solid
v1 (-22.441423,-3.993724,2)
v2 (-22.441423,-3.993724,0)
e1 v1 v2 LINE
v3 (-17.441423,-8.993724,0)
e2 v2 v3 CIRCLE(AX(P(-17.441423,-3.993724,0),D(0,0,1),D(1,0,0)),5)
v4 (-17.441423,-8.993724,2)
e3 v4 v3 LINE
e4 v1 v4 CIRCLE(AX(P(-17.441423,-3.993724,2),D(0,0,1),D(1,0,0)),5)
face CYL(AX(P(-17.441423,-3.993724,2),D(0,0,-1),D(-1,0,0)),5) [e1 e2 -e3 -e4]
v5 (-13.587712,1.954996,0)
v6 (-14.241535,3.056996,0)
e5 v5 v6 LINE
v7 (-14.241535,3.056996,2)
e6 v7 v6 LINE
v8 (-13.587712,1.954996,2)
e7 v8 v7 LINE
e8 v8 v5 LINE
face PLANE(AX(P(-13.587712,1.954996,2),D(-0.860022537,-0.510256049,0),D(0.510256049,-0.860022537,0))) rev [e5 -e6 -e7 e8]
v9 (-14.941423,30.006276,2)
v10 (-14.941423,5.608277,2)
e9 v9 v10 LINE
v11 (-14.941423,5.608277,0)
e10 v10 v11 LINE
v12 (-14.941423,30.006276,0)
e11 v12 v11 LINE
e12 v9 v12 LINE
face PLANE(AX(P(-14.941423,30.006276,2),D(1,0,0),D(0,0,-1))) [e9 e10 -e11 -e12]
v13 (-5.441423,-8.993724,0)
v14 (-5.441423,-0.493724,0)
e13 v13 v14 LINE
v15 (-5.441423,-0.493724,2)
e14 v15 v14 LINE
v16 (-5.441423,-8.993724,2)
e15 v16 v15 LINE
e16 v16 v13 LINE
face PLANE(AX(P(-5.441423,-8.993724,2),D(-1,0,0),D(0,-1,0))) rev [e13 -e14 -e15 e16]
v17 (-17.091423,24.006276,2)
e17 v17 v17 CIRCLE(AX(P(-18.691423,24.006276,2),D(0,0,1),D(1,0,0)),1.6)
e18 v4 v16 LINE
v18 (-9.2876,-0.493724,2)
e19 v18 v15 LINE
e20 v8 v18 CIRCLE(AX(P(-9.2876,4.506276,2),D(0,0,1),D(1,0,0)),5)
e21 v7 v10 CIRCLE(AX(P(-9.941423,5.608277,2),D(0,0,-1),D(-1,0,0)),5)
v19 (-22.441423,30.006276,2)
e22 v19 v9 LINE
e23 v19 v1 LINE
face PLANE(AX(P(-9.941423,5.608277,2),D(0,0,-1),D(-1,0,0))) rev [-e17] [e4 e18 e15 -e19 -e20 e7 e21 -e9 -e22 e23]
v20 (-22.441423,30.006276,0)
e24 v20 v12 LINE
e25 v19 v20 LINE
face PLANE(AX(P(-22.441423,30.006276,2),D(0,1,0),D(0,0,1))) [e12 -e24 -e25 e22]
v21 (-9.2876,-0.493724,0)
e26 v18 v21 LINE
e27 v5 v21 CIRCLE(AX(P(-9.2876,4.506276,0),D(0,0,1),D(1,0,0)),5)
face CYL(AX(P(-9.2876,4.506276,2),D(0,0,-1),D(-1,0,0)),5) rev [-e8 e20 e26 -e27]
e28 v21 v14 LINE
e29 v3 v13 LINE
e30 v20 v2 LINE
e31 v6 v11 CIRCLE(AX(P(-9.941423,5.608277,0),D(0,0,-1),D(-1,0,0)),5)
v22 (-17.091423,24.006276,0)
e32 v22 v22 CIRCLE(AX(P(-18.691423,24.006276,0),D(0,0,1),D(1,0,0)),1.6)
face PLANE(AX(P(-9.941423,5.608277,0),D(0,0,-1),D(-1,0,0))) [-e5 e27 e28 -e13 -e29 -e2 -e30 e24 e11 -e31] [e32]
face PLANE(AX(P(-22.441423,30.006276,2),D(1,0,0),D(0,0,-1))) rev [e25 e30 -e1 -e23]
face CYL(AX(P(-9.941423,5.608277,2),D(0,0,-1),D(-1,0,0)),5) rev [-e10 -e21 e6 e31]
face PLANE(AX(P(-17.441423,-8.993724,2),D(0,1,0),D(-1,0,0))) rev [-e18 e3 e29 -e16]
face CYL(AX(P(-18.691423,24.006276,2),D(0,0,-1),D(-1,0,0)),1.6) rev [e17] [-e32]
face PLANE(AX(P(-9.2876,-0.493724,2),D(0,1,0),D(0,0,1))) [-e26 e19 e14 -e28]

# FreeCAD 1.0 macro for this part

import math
import FreeCAD as App
import Part
import Sketcher
from FreeCAD import Vector
Q = App.Units.Quantity

doc = App.newDocument("Part")
body = doc.addObject("PartDesign::Body", "Body")

# Sketch on XY plane
sketch1 = body.newObject("Sketcher::SketchObject", "Sketch")
sketch1.AttachmentSupport = (doc.getObject("XY_Plane"), [""])
sketch1.MapMode = "FlatFace"
sketch1.addGeometry([
    Part.LineSegment(Vector(-13.6, 2, 0), Vector(-14.2, 3.1, 0)),  # 0
    Part.ArcOfCircle(Part.Circle(Vector(-9.9, 5.6, 0), Vector(0, 0, 1), 5), math.radians(180), math.radians(211)),  # 1
    Part.LineSegment(Vector(-14.9, 5.6, 0), Vector(-14.9, 30, 0)),  # 2
    Part.LineSegment(Vector(-14.9, 30, 0), Vector(-22.4, 30, 0)),  # 3
    Part.LineSegment(Vector(-22.4, 30, 0), Vector(-22.4, -4, 0)),  # 4
    Part.ArcOfCircle(Part.Circle(Vector(-17.4, -4, 0), Vector(0, 0, 1), 5), math.radians(180), math.radians(270)),  # 5
    Part.LineSegment(Vector(-17.4, -9, 0), Vector(-5.4, -9, 0)),  # 6
    Part.LineSegment(Vector(-5.4, -9, 0), Vector(-5.4, -0.5, 0)),  # 7
    Part.LineSegment(Vector(-5.4, -0.5, 0), Vector(-9.3, -0.5, 0)),  # 8
    Part.ArcOfCircle(Part.Circle(Vector(-9.3, 4.5, 0), Vector(0, 0, 1), 5), math.radians(-149), math.radians(-90)),  # 9
    Part.Circle(Vector(-18.7, 24, 0), Vector(0, 0, 1), 1.6),  # 10
], False)
sketch1.addConstraint([
    Sketcher.Constraint("Tangent", 0, 2, 1, 2),
    Sketcher.Constraint("Tangent", 1, 1, 2, 1),
    Sketcher.Constraint("Coincident", 2, 2, 3, 1),
    Sketcher.Constraint("Coincident", 3, 2, 4, 1),
    Sketcher.Constraint("Tangent", 4, 2, 5, 1),
    Sketcher.Constraint("Tangent", 5, 2, 6, 1),
    Sketcher.Constraint("Coincident", 6, 2, 7, 1),
    Sketcher.Constraint("Coincident", 7, 2, 8, 1),
    Sketcher.Constraint("Tangent", 8, 2, 9, 2),
    Sketcher.Constraint("Tangent", 9, 1, 0, 1),
    Sketcher.Constraint("Vertical", 2),
    Sketcher.Constraint("Horizontal", 3),
    Sketcher.Constraint("Vertical", 4),
    Sketcher.Constraint("Horizontal", 6),
    Sketcher.Constraint("Vertical", 7),
    Sketcher.Constraint("Horizontal", 8),
    Sketcher.Constraint("Equal", 1, 5),
    Sketcher.Constraint("Equal", 5, 9),
    Sketcher.Constraint("Radius", 1, Q("5 mm")),
    Sketcher.Constraint("Diameter", 10, Q("3.2 mm")),
    Sketcher.Constraint("DistanceX", 6, 1, 6, 2, Q("12 mm")),
    Sketcher.Constraint("DistanceY", 4, 2, 4, 1, Q("34 mm")),
    Sketcher.Constraint("DistanceX", 3, 2, 3, 1, Q("7.5 mm")),
    Sketcher.Constraint("DistanceY", 7, 1, 7, 2, Q("8.5 mm")),
    Sketcher.Constraint("DistanceY", 5, 3, 10, 3, Q("28 mm")),
    Sketcher.Constraint("DistanceY", 2, 1, 2, 2, Q("24.398 mm")),
    Sketcher.Constraint("DistanceX", 10, 3, 1, 3, Q("8.75 mm")),
    Sketcher.Constraint("DistanceX", 9, 3, -1, 1, Q("9.2876 mm")),
    Sketcher.Constraint("DistanceX", 8, 2, 8, 1, Q("3.846177 mm")),
    Sketcher.Constraint("DistanceY", -1, 1, 1, 3, Q("5.608277 mm")),
])
pad1 = body.newObject("PartDesign::Pad", "Pad")
pad1.Profile = sketch1
pad1.Length = 2

doc.recompute()
